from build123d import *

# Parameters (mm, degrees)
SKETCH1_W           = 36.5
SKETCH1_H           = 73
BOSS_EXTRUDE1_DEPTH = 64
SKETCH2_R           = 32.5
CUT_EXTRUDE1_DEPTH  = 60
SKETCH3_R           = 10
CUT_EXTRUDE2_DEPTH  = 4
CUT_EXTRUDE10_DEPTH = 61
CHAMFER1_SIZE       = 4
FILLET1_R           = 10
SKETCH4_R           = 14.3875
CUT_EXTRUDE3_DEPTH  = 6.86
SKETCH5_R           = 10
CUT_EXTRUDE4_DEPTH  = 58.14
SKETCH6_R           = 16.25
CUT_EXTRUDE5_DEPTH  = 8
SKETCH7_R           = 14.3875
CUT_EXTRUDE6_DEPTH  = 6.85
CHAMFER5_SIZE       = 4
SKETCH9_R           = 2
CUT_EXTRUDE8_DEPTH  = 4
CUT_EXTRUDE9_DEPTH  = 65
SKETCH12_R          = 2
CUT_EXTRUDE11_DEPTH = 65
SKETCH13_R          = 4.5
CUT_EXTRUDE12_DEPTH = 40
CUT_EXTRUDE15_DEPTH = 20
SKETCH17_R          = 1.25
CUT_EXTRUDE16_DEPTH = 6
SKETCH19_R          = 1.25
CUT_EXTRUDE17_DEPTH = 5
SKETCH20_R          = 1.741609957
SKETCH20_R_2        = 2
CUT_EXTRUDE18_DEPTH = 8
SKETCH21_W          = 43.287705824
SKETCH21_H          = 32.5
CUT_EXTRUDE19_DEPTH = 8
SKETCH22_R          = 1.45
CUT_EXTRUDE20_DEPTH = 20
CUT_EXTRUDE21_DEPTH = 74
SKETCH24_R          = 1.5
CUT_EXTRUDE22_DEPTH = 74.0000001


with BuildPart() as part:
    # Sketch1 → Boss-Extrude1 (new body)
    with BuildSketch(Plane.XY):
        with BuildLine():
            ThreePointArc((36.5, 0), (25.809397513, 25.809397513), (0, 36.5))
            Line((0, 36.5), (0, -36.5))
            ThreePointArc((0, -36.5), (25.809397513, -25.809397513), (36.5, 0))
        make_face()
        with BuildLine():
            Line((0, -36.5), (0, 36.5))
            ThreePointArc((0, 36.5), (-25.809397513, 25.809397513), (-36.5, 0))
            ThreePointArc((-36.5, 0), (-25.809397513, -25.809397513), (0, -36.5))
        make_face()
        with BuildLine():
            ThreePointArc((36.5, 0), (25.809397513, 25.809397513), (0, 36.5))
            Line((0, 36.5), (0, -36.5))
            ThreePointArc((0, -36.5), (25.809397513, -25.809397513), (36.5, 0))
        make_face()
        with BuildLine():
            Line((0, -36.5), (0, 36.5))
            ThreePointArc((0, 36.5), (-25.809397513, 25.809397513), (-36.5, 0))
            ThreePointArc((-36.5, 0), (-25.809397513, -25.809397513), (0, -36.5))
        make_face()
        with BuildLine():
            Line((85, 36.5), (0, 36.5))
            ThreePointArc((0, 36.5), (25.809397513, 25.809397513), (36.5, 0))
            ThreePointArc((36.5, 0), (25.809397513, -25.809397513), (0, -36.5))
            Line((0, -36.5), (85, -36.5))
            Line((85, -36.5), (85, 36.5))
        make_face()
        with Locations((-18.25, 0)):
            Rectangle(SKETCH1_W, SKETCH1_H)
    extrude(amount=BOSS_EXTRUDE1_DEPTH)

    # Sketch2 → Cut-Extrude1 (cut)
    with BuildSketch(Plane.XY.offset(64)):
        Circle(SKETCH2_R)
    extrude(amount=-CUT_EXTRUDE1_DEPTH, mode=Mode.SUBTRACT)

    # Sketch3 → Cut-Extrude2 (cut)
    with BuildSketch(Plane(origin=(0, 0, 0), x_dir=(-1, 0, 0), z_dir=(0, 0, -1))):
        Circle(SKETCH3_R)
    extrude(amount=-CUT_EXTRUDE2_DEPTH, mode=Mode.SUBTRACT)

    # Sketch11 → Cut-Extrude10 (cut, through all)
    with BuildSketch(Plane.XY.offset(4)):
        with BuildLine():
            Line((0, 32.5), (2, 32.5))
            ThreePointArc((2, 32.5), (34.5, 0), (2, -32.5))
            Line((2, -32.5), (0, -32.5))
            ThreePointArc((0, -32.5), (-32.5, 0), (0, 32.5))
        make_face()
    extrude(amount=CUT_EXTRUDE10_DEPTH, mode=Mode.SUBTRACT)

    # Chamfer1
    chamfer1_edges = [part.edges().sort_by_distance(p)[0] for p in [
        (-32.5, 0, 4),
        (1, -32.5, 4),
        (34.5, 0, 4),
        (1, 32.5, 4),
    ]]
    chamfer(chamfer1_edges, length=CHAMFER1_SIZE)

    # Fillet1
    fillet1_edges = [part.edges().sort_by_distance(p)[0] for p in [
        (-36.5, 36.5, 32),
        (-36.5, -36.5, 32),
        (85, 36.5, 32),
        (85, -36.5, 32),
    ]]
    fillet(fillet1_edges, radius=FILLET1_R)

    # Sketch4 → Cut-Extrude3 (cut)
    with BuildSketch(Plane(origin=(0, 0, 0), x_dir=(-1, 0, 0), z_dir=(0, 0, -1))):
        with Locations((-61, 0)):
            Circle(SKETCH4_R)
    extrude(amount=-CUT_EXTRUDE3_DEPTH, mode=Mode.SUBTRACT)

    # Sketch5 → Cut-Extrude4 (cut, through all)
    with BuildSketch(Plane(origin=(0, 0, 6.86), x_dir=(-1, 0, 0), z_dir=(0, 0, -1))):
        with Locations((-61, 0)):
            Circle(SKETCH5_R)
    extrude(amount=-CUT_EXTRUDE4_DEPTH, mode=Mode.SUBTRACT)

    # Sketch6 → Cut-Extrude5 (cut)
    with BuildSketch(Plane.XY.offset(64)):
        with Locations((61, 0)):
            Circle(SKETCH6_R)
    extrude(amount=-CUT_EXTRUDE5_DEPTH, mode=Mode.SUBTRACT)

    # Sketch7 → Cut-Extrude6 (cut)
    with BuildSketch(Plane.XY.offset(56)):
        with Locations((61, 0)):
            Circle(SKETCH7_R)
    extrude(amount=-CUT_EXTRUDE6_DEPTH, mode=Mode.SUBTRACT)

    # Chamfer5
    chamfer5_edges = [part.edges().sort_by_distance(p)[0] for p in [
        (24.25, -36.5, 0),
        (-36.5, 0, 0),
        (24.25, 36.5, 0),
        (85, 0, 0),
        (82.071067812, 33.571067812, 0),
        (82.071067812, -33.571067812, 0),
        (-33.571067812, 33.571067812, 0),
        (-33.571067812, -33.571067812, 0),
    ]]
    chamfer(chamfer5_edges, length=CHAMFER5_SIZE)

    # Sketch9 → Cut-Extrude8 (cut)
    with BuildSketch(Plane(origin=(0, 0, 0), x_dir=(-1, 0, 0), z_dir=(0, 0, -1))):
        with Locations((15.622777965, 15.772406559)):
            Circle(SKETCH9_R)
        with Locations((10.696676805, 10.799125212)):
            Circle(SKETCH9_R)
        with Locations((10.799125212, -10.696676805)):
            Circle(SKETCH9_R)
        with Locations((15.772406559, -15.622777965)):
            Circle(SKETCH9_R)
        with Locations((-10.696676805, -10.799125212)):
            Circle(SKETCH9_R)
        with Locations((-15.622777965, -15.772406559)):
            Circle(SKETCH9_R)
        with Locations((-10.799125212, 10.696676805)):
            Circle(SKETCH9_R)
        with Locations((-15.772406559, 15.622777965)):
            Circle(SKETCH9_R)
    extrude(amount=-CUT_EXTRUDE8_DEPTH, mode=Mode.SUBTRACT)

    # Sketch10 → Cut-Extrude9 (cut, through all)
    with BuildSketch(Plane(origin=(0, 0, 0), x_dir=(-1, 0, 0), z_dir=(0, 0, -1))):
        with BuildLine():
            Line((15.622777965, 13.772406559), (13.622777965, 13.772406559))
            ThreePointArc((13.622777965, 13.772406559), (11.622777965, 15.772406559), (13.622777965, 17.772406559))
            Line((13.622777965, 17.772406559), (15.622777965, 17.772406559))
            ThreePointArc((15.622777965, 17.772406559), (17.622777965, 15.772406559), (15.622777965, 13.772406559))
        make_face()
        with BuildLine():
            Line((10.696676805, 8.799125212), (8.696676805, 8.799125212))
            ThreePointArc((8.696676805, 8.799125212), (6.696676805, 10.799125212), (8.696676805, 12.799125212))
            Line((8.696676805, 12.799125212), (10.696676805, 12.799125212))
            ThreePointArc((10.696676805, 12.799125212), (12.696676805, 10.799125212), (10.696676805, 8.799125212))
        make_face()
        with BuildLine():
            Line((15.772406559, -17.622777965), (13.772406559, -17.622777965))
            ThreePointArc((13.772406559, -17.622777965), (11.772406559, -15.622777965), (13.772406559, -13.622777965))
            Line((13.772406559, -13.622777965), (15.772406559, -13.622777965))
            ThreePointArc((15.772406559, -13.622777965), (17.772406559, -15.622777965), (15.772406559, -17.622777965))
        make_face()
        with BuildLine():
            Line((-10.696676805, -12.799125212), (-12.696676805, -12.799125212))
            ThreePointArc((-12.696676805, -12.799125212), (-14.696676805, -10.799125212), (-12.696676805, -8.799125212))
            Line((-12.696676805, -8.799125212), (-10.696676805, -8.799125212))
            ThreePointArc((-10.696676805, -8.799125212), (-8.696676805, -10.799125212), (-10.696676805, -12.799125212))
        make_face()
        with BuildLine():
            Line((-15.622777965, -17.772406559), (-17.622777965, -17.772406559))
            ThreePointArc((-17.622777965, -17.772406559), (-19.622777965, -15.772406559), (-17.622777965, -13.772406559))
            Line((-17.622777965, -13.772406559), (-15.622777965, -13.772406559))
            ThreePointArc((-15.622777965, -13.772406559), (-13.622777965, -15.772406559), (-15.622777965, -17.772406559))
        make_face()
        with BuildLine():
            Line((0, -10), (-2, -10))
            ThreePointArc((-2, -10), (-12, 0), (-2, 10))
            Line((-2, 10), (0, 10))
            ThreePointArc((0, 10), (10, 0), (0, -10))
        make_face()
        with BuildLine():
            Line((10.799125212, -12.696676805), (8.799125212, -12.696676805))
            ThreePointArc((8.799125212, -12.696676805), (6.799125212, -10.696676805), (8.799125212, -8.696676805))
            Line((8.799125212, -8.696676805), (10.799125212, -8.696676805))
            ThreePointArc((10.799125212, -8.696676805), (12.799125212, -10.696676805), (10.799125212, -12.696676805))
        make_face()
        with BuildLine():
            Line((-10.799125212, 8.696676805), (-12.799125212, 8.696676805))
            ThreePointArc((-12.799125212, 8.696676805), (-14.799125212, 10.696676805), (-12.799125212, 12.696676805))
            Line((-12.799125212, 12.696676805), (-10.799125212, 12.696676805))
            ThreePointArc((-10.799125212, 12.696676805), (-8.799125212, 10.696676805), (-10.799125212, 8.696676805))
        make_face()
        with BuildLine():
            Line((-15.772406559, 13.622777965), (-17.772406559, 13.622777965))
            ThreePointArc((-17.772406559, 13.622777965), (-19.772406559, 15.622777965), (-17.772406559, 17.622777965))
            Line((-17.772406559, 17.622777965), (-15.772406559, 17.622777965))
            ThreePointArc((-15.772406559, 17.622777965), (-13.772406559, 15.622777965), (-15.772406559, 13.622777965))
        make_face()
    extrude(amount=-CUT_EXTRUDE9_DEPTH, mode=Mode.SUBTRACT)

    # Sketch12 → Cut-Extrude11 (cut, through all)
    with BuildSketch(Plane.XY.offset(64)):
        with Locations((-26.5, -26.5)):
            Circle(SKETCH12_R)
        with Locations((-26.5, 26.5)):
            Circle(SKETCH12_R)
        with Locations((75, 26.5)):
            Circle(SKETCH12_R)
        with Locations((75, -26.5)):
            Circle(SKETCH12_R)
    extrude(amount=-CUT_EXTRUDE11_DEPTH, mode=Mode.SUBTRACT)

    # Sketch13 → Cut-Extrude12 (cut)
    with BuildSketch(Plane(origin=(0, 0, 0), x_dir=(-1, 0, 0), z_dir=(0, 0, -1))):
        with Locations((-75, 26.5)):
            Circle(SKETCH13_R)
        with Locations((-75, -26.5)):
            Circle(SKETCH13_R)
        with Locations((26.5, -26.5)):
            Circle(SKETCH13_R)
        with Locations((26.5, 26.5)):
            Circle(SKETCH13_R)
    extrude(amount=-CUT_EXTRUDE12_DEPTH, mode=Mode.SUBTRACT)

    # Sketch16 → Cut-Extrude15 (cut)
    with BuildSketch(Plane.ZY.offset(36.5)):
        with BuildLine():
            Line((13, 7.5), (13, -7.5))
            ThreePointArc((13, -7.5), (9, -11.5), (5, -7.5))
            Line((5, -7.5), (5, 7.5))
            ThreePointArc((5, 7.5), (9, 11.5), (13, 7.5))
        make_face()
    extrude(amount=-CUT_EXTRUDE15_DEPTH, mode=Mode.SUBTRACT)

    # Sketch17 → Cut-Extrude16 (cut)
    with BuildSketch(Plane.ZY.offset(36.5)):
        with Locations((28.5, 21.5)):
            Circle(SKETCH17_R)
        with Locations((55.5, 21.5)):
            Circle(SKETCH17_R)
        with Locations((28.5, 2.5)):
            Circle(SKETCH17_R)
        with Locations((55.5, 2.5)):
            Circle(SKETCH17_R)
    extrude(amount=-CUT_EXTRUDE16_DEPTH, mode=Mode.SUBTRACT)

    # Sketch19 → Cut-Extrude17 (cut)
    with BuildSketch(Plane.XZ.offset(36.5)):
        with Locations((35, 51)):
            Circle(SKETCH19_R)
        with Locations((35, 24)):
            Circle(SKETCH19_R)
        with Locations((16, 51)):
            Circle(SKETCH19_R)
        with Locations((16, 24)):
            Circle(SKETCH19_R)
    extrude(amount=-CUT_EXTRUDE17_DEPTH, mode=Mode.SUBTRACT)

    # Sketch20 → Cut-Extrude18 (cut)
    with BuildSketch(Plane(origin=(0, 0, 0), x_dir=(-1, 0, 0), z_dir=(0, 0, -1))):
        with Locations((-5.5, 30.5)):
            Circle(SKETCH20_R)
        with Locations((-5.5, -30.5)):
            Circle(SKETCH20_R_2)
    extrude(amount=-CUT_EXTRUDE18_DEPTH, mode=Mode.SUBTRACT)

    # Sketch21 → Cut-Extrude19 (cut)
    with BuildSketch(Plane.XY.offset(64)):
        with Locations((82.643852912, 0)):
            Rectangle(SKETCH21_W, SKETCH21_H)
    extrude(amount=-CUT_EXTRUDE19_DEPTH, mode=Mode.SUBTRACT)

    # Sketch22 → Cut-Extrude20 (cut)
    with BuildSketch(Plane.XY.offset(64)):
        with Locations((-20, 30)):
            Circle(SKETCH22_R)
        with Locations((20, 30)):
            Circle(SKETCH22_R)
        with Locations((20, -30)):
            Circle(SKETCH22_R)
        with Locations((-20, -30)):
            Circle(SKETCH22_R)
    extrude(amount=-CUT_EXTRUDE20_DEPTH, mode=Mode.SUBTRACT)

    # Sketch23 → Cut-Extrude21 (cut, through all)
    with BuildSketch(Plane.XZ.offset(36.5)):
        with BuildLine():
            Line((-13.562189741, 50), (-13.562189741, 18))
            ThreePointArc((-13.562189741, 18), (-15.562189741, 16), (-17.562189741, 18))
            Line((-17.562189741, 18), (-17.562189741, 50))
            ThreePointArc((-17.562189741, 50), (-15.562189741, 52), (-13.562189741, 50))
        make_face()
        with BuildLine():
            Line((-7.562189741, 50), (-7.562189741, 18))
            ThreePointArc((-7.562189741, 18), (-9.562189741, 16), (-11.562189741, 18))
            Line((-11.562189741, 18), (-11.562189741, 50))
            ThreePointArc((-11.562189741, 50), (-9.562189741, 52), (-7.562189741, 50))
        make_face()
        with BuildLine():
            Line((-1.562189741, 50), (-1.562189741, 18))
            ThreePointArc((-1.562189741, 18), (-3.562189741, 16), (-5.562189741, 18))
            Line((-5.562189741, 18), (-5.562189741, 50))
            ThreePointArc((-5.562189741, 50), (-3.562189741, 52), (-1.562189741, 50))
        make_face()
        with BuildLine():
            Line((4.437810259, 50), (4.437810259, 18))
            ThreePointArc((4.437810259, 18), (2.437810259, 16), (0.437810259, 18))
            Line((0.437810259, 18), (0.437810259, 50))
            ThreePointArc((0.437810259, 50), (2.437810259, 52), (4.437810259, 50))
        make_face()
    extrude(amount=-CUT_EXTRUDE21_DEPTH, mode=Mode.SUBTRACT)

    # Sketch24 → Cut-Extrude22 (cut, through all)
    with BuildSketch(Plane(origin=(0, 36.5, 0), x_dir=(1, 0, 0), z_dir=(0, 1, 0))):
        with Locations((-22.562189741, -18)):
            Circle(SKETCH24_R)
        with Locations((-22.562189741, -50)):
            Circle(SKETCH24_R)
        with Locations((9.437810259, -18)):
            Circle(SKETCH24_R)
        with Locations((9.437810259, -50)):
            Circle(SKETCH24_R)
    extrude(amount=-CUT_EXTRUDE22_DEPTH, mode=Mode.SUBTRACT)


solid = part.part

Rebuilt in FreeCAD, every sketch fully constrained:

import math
import FreeCAD as App
import Part
import Sketcher
from FreeCAD import Vector
Q = App.Units.Quantity


def edges_at(feature, points):
    """Names of the edges that pass closest to the given points."""
    edges = feature.Shape.Edges
    near = lambda p: min(range(len(edges)), key=lambda i: edges[i].distToShape(Part.Vertex(*p))[0])
    return sorted({f"Edge{near(p) + 1}" for p in points})

doc = App.newDocument("Part")
body = doc.addObject("PartDesign::Body", "Body")

sketch1 = body.newObject("Sketcher::SketchObject", "Sketch")
sketch1.AttachmentSupport = (doc.getObject("XY_Plane"), [""])
sketch1.MapMode = "FlatFace"
sketch1.addGeometry(Part.LineSegment(Vector(85, 36, 0), Vector(-36, 36, 0)), False)
sketch1.addGeometry(Part.LineSegment(Vector(-36, 36, 0), Vector(-36, -36, 0)), False)
sketch1.addGeometry(Part.LineSegment(Vector(-36, -36, 0), Vector(85, -36, 0)), False)
sketch1.addGeometry(Part.LineSegment(Vector(85, -36, 0), Vector(85, 36, 0)), False)
sketch1.addConstraint(Sketcher.Constraint("Coincident", 0, 2, 1, 1))
sketch1.addConstraint(Sketcher.Constraint("Coincident", 1, 2, 2, 1))
sketch1.addConstraint(Sketcher.Constraint("Coincident", 2, 2, 3, 1))
sketch1.addConstraint(Sketcher.Constraint("Coincident", 3, 2, 0, 1))
sketch1.addConstraint(Sketcher.Constraint("Horizontal", 0))
sketch1.addConstraint(Sketcher.Constraint("Vertical", 1))
sketch1.addConstraint(Sketcher.Constraint("Horizontal", 2))
sketch1.addConstraint(Sketcher.Constraint("Vertical", 3))
sketch1.addConstraint(Sketcher.Constraint("DistanceY", 1, 2, 1, 1, Q("73 mm")))
sketch1.addConstraint(Sketcher.Constraint("DistanceX", 0, 2, 0, 1, Q("121.5 mm")))
sketch1.addConstraint(Sketcher.Constraint("DistanceX", -1, 1, 2, 2, Q("85 mm")))
sketch1.addConstraint(Sketcher.Constraint("DistanceY", -1, 1, 0, 2, Q("36.5 mm")))
pad1 = body.newObject("PartDesign::Pad", "Pad")
pad1.Profile = sketch1
pad1.Length = 64

sketch2 = body.newObject("Sketcher::SketchObject", "Sketch001")
sketch2.AttachmentSupport = (doc.getObject("XY_Plane"), [""])
sketch2.MapMode = "FlatFace"
sketch2.AttachmentOffset = App.Placement(Vector(0, 0, 64), App.Rotation())
sketch2.addGeometry(Part.Circle(Vector(0, 0, 0), Vector(0, 0, 1), 32), False)
sketch2.addConstraint(Sketcher.Constraint("Coincident", 0, 3, -1, 1))
sketch2.addConstraint(Sketcher.Constraint("Diameter", 0, Q("65 mm")))
pocket1 = body.newObject("PartDesign::Pocket", "Pocket")
pocket1.Profile = sketch2
pocket1.Length = 60

sketch3 = body.newObject("Sketcher::SketchObject", "Sketch002")
sketch3.AttachmentSupport = (doc.getObject("XY_Plane"), [""])
sketch3.MapMode = "FlatFace"
sketch3.addGeometry(Part.Circle(Vector(0, 0, 0), Vector(0, 0, 1), 10), False)
sketch3.addConstraint(Sketcher.Constraint("Coincident", 0, 3, -1, 1))
sketch3.addConstraint(Sketcher.Constraint("Diameter", 0, Q("20 mm")))
pocket2 = body.newObject("PartDesign::Pocket", "Pocket001")
pocket2.Profile = sketch3
pocket2.Length = 4
pocket2.Reversed = True

sketch4 = body.newObject("Sketcher::SketchObject", "Sketch003")
sketch4.AttachmentSupport = (doc.getObject("XY_Plane"), [""])
sketch4.MapMode = "FlatFace"
sketch4.AttachmentOffset = App.Placement(Vector(0, 0, 4), App.Rotation())
sketch4.addGeometry(Part.LineSegment(Vector(2, 32.5, 0), Vector(0, 32.5, 0)), False)
sketch4.addGeometry(Part.ArcOfCircle(Part.Circle(Vector(0, 0, 0), Vector(0, 0, 1), 32.5), math.radians(90), math.radians(270)), False)
sketch4.addGeometry(Part.LineSegment(Vector(0, -32.5, 0), Vector(2, -32.5, 0)), False)
sketch4.addGeometry(Part.ArcOfCircle(Part.Circle(Vector(2, 0, 0), Vector(0, 0, 1), 32.5), math.radians(-90), math.radians(90)), False)
sketch4.addConstraint(Sketcher.Constraint("Tangent", 0, 2, 1, 1))
sketch4.addConstraint(Sketcher.Constraint("Tangent", 1, 2, 2, 1))
sketch4.addConstraint(Sketcher.Constraint("Tangent", 2, 2, 3, 1))
sketch4.addConstraint(Sketcher.Constraint("Tangent", 3, 2, 0, 1))
sketch4.addConstraint(Sketcher.Constraint("Horizontal", 0))
sketch4.addConstraint(Sketcher.Constraint("Horizontal", 2))
sketch4.addConstraint(Sketcher.Constraint("Coincident", 1, 3, -1, 1))
sketch4.addConstraint(Sketcher.Constraint("Radius", 1, Q("32.5 mm")))
sketch4.addConstraint(Sketcher.Constraint("DistanceX", 0, 2, 0, 1, Q("2 mm")))
pocket3 = body.newObject("PartDesign::Pocket", "Pocket002")
pocket3.Profile = sketch4
pocket3.Type = "ThroughAll"
pocket3.Reversed = True
doc.recompute()

chamfer = body.newObject("PartDesign::Chamfer", "Chamfer")
chamfer.Base = (pocket3, edges_at(pocket3, [
    (-32.5, 0, 4),
    (1, -32.5, 4),
    (34.5, 0, 4),
    (1, 32.5, 4),
]))
chamfer.Size = 4
doc.recompute()

fillet = body.newObject("PartDesign::Fillet", "Fillet")
fillet.Base = (chamfer, edges_at(chamfer, [
    (-36.5, 36.5, 32),
    (-36.5, -36.5, 32),
    (85, 36.5, 32),
    (85, -36.5, 32),
]))
fillet.Radius = 10

sketch5 = body.newObject("Sketcher::SketchObject", "Sketch004")
sketch5.AttachmentSupport = (doc.getObject("XY_Plane"), [""])
sketch5.MapMode = "FlatFace"
sketch5.addGeometry(Part.Circle(Vector(61, 0, 0), Vector(0, 0, 1), 14), False)
sketch5.addConstraint(Sketcher.Constraint("PointOnObject", 0, 3, -1))
sketch5.addConstraint(Sketcher.Constraint("Diameter", 0, Q("28.775 mm")))
sketch5.addConstraint(Sketcher.Constraint("DistanceX", -1, 1, 0, 3, Q("61 mm")))
pocket4 = body.newObject("PartDesign::Pocket", "Pocket003")
pocket4.Profile = sketch5
pocket4.Length = 6.86
pocket4.Reversed = True

sketch6 = body.newObject("Sketcher::SketchObject", "Sketch005")
sketch6.AttachmentSupport = (doc.getObject("XY_Plane"), [""])
sketch6.MapMode = "FlatFace"
sketch6.AttachmentOffset = App.Placement(Vector(0, 0, 6.86), App.Rotation())
sketch6.addGeometry(Part.Circle(Vector(61, 0, 0), Vector(0, 0, 1), 10), False)
sketch6.addConstraint(Sketcher.Constraint("PointOnObject", 0, 3, -1))
sketch6.addConstraint(Sketcher.Constraint("Diameter", 0, Q("20 mm")))
sketch6.addConstraint(Sketcher.Constraint("DistanceX", -1, 1, 0, 3, Q("61 mm")))
pocket5 = body.newObject("PartDesign::Pocket", "Pocket004")
pocket5.Profile = sketch6
pocket5.Type = "ThroughAll"
pocket5.Reversed = True

sketch7 = body.newObject("Sketcher::SketchObject", "Sketch006")
sketch7.AttachmentSupport = (doc.getObject("XY_Plane"), [""])
sketch7.MapMode = "FlatFace"
sketch7.AttachmentOffset = App.Placement(Vector(0, 0, 64), App.Rotation())
sketch7.addGeometry(Part.Circle(Vector(61, 0, 0), Vector(0, 0, 1), 16), False)
sketch7.addConstraint(Sketcher.Constraint("PointOnObject", 0, 3, -1))
sketch7.addConstraint(Sketcher.Constraint("Diameter", 0, Q("32.5 mm")))
sketch7.addConstraint(Sketcher.Constraint("DistanceX", -1, 1, 0, 3, Q("61 mm")))
pocket6 = body.newObject("PartDesign::Pocket", "Pocket005")
pocket6.Profile = sketch7
pocket6.Length = 8

sketch8 = body.newObject("Sketcher::SketchObject", "Sketch007")
sketch8.AttachmentSupport = (doc.getObject("XY_Plane"), [""])
sketch8.MapMode = "FlatFace"
sketch8.AttachmentOffset = App.Placement(Vector(0, 0, 56), App.Rotation())
sketch8.addGeometry(Part.Circle(Vector(61, 0, 0), Vector(0, 0, 1), 14), False)
sketch8.addConstraint(Sketcher.Constraint("PointOnObject", 0, 3, -1))
sketch8.addConstraint(Sketcher.Constraint("Diameter", 0, Q("28.775 mm")))
sketch8.addConstraint(Sketcher.Constraint("DistanceX", -1, 1, 0, 3, Q("61 mm")))
pocket7 = body.newObject("PartDesign::Pocket", "Pocket006")
pocket7.Profile = sketch8
pocket7.Length = 6.85
doc.recompute()

chamfer2 = body.newObject("PartDesign::Chamfer", "Chamfer001")
chamfer2.Base = (pocket7, edges_at(pocket7, [
    (24.25, -36.5, 0),
    (-36.5, 0, 0),
    (24.25, 36.5, 0),
    (85, 0, 0),
    (82.071, 33.571, 0),
    (82.071, -33.571, 0),
    (-33.571, 33.571, 0),
    (-33.571, -33.571, 0),
]))
chamfer2.Size = 4

sketch9 = body.newObject("Sketcher::SketchObject", "Sketch008")
sketch9.AttachmentSupport = (doc.getObject("XY_Plane"), [""])
sketch9.MapMode = "FlatFace"
sketch9.addGeometry(Part.Circle(Vector(-15.6, 15.8, 0), Vector(0, 0, 1), 2), False)
sketch9.addGeometry(Part.Circle(Vector(-10.7, 10.8, 0), Vector(0, 0, 1), 2), False)
sketch9.addGeometry(Part.Circle(Vector(-10.8, -10.7, 0), Vector(0, 0, 1), 2), False)
sketch9.addGeometry(Part.Circle(Vector(-15.8, -15.6, 0), Vector(0, 0, 1), 2), False)
sketch9.addGeometry(Part.Circle(Vector(10.7, -10.8, 0), Vector(0, 0, 1), 2), False)
sketch9.addGeometry(Part.Circle(Vector(15.6, -15.8, 0), Vector(0, 0, 1), 2), False)
sketch9.addGeometry(Part.Circle(Vector(10.8, 10.7, 0), Vector(0, 0, 1), 2), False)
sketch9.addGeometry(Part.Circle(Vector(15.8, 15.6, 0), Vector(0, 0, 1), 2), False)
sketch9.addConstraint(Sketcher.Constraint("Equal", 0, 1))
sketch9.addConstraint(Sketcher.Constraint("Equal", 1, 2))
sketch9.addConstraint(Sketcher.Constraint("Equal", 2, 3))
sketch9.addConstraint(Sketcher.Constraint("Equal", 3, 4))
sketch9.addConstraint(Sketcher.Constraint("Equal", 4, 5))
sketch9.addConstraint(Sketcher.Constraint("Equal", 5, 6))
sketch9.addConstraint(Sketcher.Constraint("Equal", 6, 7))
sketch9.addConstraint(Sketcher.Constraint("Symmetric", 1, 3, 4, 3, -1, 1))
sketch9.addConstraint(Sketcher.Constraint("Symmetric", 0, 3, 5, 3, -1, 1))
sketch9.addConstraint(Sketcher.Constraint("Symmetric", 2, 3, 6, 3, -1, 1))
sketch9.addConstraint(Sketcher.Constraint("Symmetric", 3, 3, 7, 3, -1, 1))
sketch9.addConstraint(Sketcher.Constraint("Diameter", 0, Q("4 mm")))
sketch9.addConstraint(Sketcher.Constraint("DistanceX", 0, 3, 1, 3, Q("4.926101 mm")))
sketch9.addConstraint(Sketcher.Constraint("DistanceY", 3, 3, 2, 3, Q("4.926101 mm")))
sketch9.addConstraint(Sketcher.Constraint("DistanceY", 1, 3, 0, 3, Q("4.973281 mm")))
sketch9.addConstraint(Sketcher.Constraint("DistanceX", 2, 3, 1, 3, Q("0.102448 mm")))
sketch9.addConstraint(Sketcher.Constraint("DistanceX", 3, 3, 2, 3, Q("4.973281 mm")))
sketch9.addConstraint(Sketcher.Constraint("DistanceY", 4, 3, 2, 3, Q("0.102448 mm")))
sketch9.addConstraint(Sketcher.Constraint("DistanceY", 4, 3, 1, 3, Q("21.59825 mm")))
sketch9.addConstraint(Sketcher.Constraint("DistanceX", 2, 3, 6, 3, Q("21.59825 mm")))
pocket8 = body.newObject("PartDesign::Pocket", "Pocket007")
pocket8.Profile = sketch9
pocket8.Length = 4
pocket8.Reversed = True

sketch10 = body.newObject("Sketcher::SketchObject", "Sketch009")
sketch10.AttachmentSupport = (doc.getObject("XY_Plane"), [""])
sketch10.MapMode = "FlatFace"
sketch10.addGeometry(Part.LineSegment(Vector(-13.6, 13.8, 0), Vector(-15.6, 13.8, 0)), False)
sketch10.addGeometry(Part.ArcOfCircle(Part.Circle(Vector(-15.6, 15.8, 0), Vector(0, 0, 1), 2), math.radians(90), math.radians(270)), False)
sketch10.addGeometry(Part.LineSegment(Vector(-15.6, 17.8, 0), Vector(-13.6, 17.8, 0)), False)
sketch10.addGeometry(Part.ArcOfCircle(Part.Circle(Vector(-13.6, 15.8, 0), Vector(0, 0, 1), 2), math.radians(-90), math.radians(90)), False)
sketch10.addGeometry(Part.LineSegment(Vector(-8.7, 8.8, 0), Vector(-10.7, 8.8, 0)), False)
sketch10.addGeometry(Part.ArcOfCircle(Part.Circle(Vector(-10.7, 10.8, 0), Vector(0, 0, 1), 2), math.radians(90), math.radians(270)), False)
sketch10.addGeometry(Part.LineSegment(Vector(-10.7, 12.8, 0), Vector(-8.7, 12.8, 0)), False)
sketch10.addGeometry(Part.ArcOfCircle(Part.Circle(Vector(-8.7, 10.8, 0), Vector(0, 0, 1), 2), math.radians(-90), math.radians(90)), False)
sketch10.addGeometry(Part.LineSegment(Vector(-13.8, -17.6, 0), Vector(-15.8, -17.6, 0)), False)
sketch10.addGeometry(Part.ArcOfCircle(Part.Circle(Vector(-15.8, -15.6, 0), Vector(0, 0, 1), 2), math.radians(90), math.radians(270)), False)
sketch10.addGeometry(Part.LineSegment(Vector(-15.8, -13.6, 0), Vector(-13.8, -13.6, 0)), False)
sketch10.addGeometry(Part.ArcOfCircle(Part.Circle(Vector(-13.8, -15.6, 0), Vector(0, 0, 1), 2), math.radians(-90), math.radians(90)), False)
sketch10.addGeometry(Part.LineSegment(Vector(12.7, -12.8, 0), Vector(10.7, -12.8, 0)), False)
sketch10.addGeometry(Part.ArcOfCircle(Part.Circle(Vector(10.7, -10.8, 0), Vector(0, 0, 1), 2), math.radians(90), math.radians(270)), False)
sketch10.addGeometry(Part.LineSegment(Vector(10.7, -8.8, 0), Vector(12.7, -8.8, 0)), False)
sketch10.addGeometry(Part.ArcOfCircle(Part.Circle(Vector(12.7, -10.8, 0), Vector(0, 0, 1), 2), math.radians(-90), math.radians(90)), False)
sketch10.addGeometry(Part.LineSegment(Vector(17.6, -17.8, 0), Vector(15.6, -17.8, 0)), False)
sketch10.addGeometry(Part.ArcOfCircle(Part.Circle(Vector(15.6, -15.8, 0), Vector(0, 0, 1), 2), math.radians(90), math.radians(270)), False)
sketch10.addGeometry(Part.LineSegment(Vector(15.6, -13.8, 0), Vector(17.6, -13.8, 0)), False)
sketch10.addGeometry(Part.ArcOfCircle(Part.Circle(Vector(17.6, -15.8, 0), Vector(0, 0, 1), 2), math.radians(-90), math.radians(90)), False)
sketch10.addGeometry(Part.LineSegment(Vector(2, -10, 0), Vector(0, -10, 0)), False)
sketch10.addGeometry(Part.ArcOfCircle(Part.Circle(Vector(0, 0, 0), Vector(0, 0, 1), 10), math.radians(90), math.radians(270)), False)
sketch10.addGeometry(Part.LineSegment(Vector(0, 10, 0), Vector(2, 10, 0)), False)
sketch10.addGeometry(Part.ArcOfCircle(Part.Circle(Vector(2, 0, 0), Vector(0, 0, 1), 10), math.radians(-90), math.radians(90)), False)
sketch10.addGeometry(Part.LineSegment(Vector(-8.8, -12.7, 0), Vector(-10.8, -12.7, 0)), False)
sketch10.addGeometry(Part.ArcOfCircle(Part.Circle(Vector(-10.8, -10.7, 0), Vector(0, 0, 1), 2), math.radians(90), math.radians(270)), False)
sketch10.addGeometry(Part.LineSegment(Vector(-10.8, -8.7, 0), Vector(-8.8, -8.7, 0)), False)
sketch10.addGeometry(Part.ArcOfCircle(Part.Circle(Vector(-8.8, -10.7, 0), Vector(0, 0, 1), 2), math.radians(-90), math.radians(90)), False)
sketch10.addGeometry(Part.LineSegment(Vector(12.8, 8.7, 0), Vector(10.8, 8.7, 0)), False)
sketch10.addGeometry(Part.ArcOfCircle(Part.Circle(Vector(10.8, 10.7, 0), Vector(0, 0, 1), 2), math.radians(90), math.radians(270)), False)
sketch10.addGeometry(Part.LineSegment(Vector(10.8, 12.7, 0), Vector(12.8, 12.7, 0)), False)
sketch10.addGeometry(Part.ArcOfCircle(Part.Circle(Vector(12.8, 10.7, 0), Vector(0, 0, 1), 2), math.radians(-90), math.radians(90)), False)
sketch10.addGeometry(Part.LineSegment(Vector(17.8, 13.6, 0), Vector(15.8, 13.6, 0)), False)
sketch10.addGeometry(Part.ArcOfCircle(Part.Circle(Vector(15.8, 15.6, 0), Vector(0, 0, 1), 2), math.radians(90), math.radians(270)), False)
sketch10.addGeometry(Part.LineSegment(Vector(15.8, 17.6, 0), Vector(17.8, 17.6, 0)), False)
sketch10.addGeometry(Part.ArcOfCircle(Part.Circle(Vector(17.8, 15.6, 0), Vector(0, 0, 1), 2), math.radians(-90), math.radians(90)), False)
sketch10.addConstraint(Sketcher.Constraint("Tangent", 0, 2, 1, 2))
sketch10.addConstraint(Sketcher.Constraint("Tangent", 1, 1, 2, 1))
sketch10.addConstraint(Sketcher.Constraint("Tangent", 2, 2, 3, 2))
sketch10.addConstraint(Sketcher.Constraint("Tangent", 3, 1, 0, 1))
sketch10.addConstraint(Sketcher.Constraint("Tangent", 4, 2, 5, 2))
sketch10.addConstraint(Sketcher.Constraint("Tangent", 5, 1, 6, 1))
sketch10.addConstraint(Sketcher.Constraint("Tangent", 6, 2, 7, 2))
sketch10.addConstraint(Sketcher.Constraint("Tangent", 7, 1, 4, 1))
sketch10.addConstraint(Sketcher.Constraint("Tangent", 8, 2, 9, 2))
sketch10.addConstraint(Sketcher.Constraint("Tangent", 9, 1, 10, 1))
sketch10.addConstraint(Sketcher.Constraint("Tangent", 10, 2, 11, 2))
sketch10.addConstraint(Sketcher.Constraint("Tangent", 11, 1, 8, 1))
sketch10.addConstraint(Sketcher.Constraint("Tangent", 12, 2, 13, 2))
sketch10.addConstraint(Sketcher.Constraint("Tangent", 13, 1, 14, 1))
sketch10.addConstraint(Sketcher.Constraint("Tangent", 14, 2, 15, 2))
sketch10.addConstraint(Sketcher.Constraint("Tangent", 15, 1, 12, 1))
sketch10.addConstraint(Sketcher.Constraint("Tangent", 16, 2, 17, 2))
sketch10.addConstraint(Sketcher.Constraint("Tangent", 17, 1, 18, 1))
sketch10.addConstraint(Sketcher.Constraint("Tangent", 18, 2, 19, 2))
sketch10.addConstraint(Sketcher.Constraint("Tangent", 19, 1, 16, 1))
sketch10.addConstraint(Sketcher.Constraint("Tangent", 20, 2, 21, 2))
sketch10.addConstraint(Sketcher.Constraint("Tangent", 21, 1, 22, 1))
sketch10.addConstraint(Sketcher.Constraint("Tangent", 22, 2, 23, 2))
sketch10.addConstraint(Sketcher.Constraint("Tangent", 23, 1, 20, 1))
sketch10.addConstraint(Sketcher.Constraint("Tangent", 24, 2, 25, 2))
sketch10.addConstraint(Sketcher.Constraint("Tangent", 25, 1, 26, 1))
sketch10.addConstraint(Sketcher.Constraint("Tangent", 26, 2, 27, 2))
sketch10.addConstraint(Sketcher.Constraint("Tangent", 27, 1, 24, 1))
sketch10.addConstraint(Sketcher.Constraint("Tangent", 28, 2, 29, 2))
sketch10.addConstraint(Sketcher.Constraint("Tangent", 29, 1, 30, 1))
sketch10.addConstraint(Sketcher.Constraint("Tangent", 30, 2, 31, 2))
sketch10.addConstraint(Sketcher.Constraint("Tangent", 31, 1, 28, 1))
sketch10.addConstraint(Sketcher.Constraint("Tangent", 32, 2, 33, 2))
sketch10.addConstraint(Sketcher.Constraint("Tangent", 33, 1, 34, 1))
sketch10.addConstraint(Sketcher.Constraint("Tangent", 34, 2, 35, 2))
sketch10.addConstraint(Sketcher.Constraint("Tangent", 35, 1, 32, 1))
sketch10.addConstraint(Sketcher.Constraint("Horizontal", 0))
sketch10.addConstraint(Sketcher.Constraint("Horizontal", 2))
sketch10.addConstraint(Sketcher.Constraint("Horizontal", 4))
sketch10.addConstraint(Sketcher.Constraint("Horizontal", 6))
sketch10.addConstraint(Sketcher.Constraint("Horizontal", 8))
sketch10.addConstraint(Sketcher.Constraint("Horizontal", 10))
sketch10.addConstraint(Sketcher.Constraint("Horizontal", 12))
sketch10.addConstraint(Sketcher.Constraint("Horizontal", 14))
sketch10.addConstraint(Sketcher.Constraint("Horizontal", 16))
sketch10.addConstraint(Sketcher.Constraint("Horizontal", 18))
sketch10.addConstraint(Sketcher.Constraint("Horizontal", 20))
sketch10.addConstraint(Sketcher.Constraint("Horizontal", 22))
sketch10.addConstraint(Sketcher.Constraint("Horizontal", 24))
sketch10.addConstraint(Sketcher.Constraint("Horizontal", 26))
sketch10.addConstraint(Sketcher.Constraint("Horizontal", 28))
sketch10.addConstraint(Sketcher.Constraint("Horizontal", 30))
sketch10.addConstraint(Sketcher.Constraint("Horizontal", 32))
sketch10.addConstraint(Sketcher.Constraint("Horizontal", 34))
sketch10.addConstraint(Sketcher.Constraint("Coincident", 21, 3, -1, 1))
sketch10.addConstraint(Sketcher.Constraint("Equal", 3, 5))
sketch10.addConstraint(Sketcher.Constraint("Equal", 7, 9))
sketch10.addConstraint(Sketcher.Constraint("Equal", 11, 13))
sketch10.addConstraint(Sketcher.Constraint("Equal", 15, 17))
sketch10.addConstraint(Sketcher.Constraint("Equal", 19, 25))
sketch10.addConstraint(Sketcher.Constraint("Equal", 27, 29))
sketch10.addConstraint(Sketcher.Constraint("Equal", 31, 33))
sketch10.addConstraint(Sketcher.Constraint("Symmetric", 5, 3, 13, 3, -1, 1))
sketch10.addConstraint(Sketcher.Constraint("Symmetric", 1, 3, 17, 3, -1, 1))
sketch10.addConstraint(Sketcher.Constraint("Symmetric", 25, 3, 29, 3, -1, 1))
sketch10.addConstraint(Sketcher.Constraint("Symmetric", 9, 3, 33, 3, -1, 1))
sketch10.addConstraint(Sketcher.Constraint("Equal", 2, 4))
sketch10.addConstraint(Sketcher.Constraint("Equal", 6, 8))
sketch10.addConstraint(Sketcher.Constraint("Equal", 10, 12))
sketch10.addConstraint(Sketcher.Constraint("Equal", 14, 16))
sketch10.addConstraint(Sketcher.Constraint("Equal", 18, 20))
sketch10.addConstraint(Sketcher.Constraint("Equal", 22, 24))
sketch10.addConstraint(Sketcher.Constraint("Equal", 26, 28))
sketch10.addConstraint(Sketcher.Constraint("Equal", 30, 32))
sketch10.addConstraint(Sketcher.Constraint("Radius", 1, Q("2 mm")))
sketch10.addConstraint(Sketcher.Constraint("Radius", 21, Q("10 mm")))
sketch10.addConstraint(Sketcher.Constraint("DistanceX", 0, 2, 0, 1, Q("2 mm")))
sketch10.addConstraint(Sketcher.Constraint("DistanceX", 3, 3, 5, 3, Q("2.926101 mm")))
sketch10.addConstraint(Sketcher.Constraint("DistanceY", 11, 3, 25, 3, Q("4.926101 mm")))
sketch10.addConstraint(Sketcher.Constraint("DistanceY", 5, 3, 3, 3, Q("4.973281 mm")))
sketch10.addConstraint(Sketcher.Constraint("DistanceX", 9, 3, 5, 3, Q("5.07573 mm")))
sketch10.addConstraint(Sketcher.Constraint("DistanceY", 13, 3, 7, 3, Q("21.59825 mm")))
sketch10.addConstraint(Sketcher.Constraint("DistanceY", 17, 3, 11, 3, Q("0.149629 mm")))
sketch10.addConstraint(Sketcher.Constraint("DistanceX", 11, 3, 25, 3, Q("2.973281 mm")))
sketch10.addConstraint(Sketcher.Constraint("DistanceX", 1, 3, -1, 1, Q("15.622778 mm")))
pocket9 = body.newObject("PartDesign::Pocket", "Pocket008")
pocket9.Profile = sketch10
pocket9.Type = "ThroughAll"
pocket9.Reversed = True

sketch11 = body.newObject("Sketcher::SketchObject", "Sketch010")
sketch11.AttachmentSupport = (doc.getObject("XY_Plane"), [""])
sketch11.MapMode = "FlatFace"
sketch11.AttachmentOffset = App.Placement(Vector(0, 0, 64), App.Rotation())
sketch11.addGeometry(Part.Circle(Vector(-26.5, -26.5, 0), Vector(0, 0, 1), 2), False)
sketch11.addGeometry(Part.Circle(Vector(-26.5, 26.5, 0), Vector(0, 0, 1), 2), False)
sketch11.addGeometry(Part.Circle(Vector(75, 26.5, 0), Vector(0, 0, 1), 2), False)
sketch11.addGeometry(Part.Circle(Vector(75, -26.5, 0), Vector(0, 0, 1), 2), False)
sketch11.addConstraint(Sketcher.Constraint("Equal", 0, 1))
sketch11.addConstraint(Sketcher.Constraint("Equal", 1, 2))
sketch11.addConstraint(Sketcher.Constraint("Equal", 2, 3))
sketch11.addConstraint(Sketcher.Constraint("Symmetric", 0, 3, 1, 3, -1))
sketch11.addConstraint(Sketcher.Constraint("Symmetric", 2, 3, 3, 3, -1))
sketch11.addConstraint(Sketcher.Constraint("Horizontal", 1, 3, 2, 3))
sketch11.addConstraint(Sketcher.Constraint("Diameter", 0, Q("4 mm")))
sketch11.addConstraint(Sketcher.Constraint("DistanceX", -1, 1, 2, 3, Q("75 mm")))
sketch11.addConstraint(Sketcher.Constraint("DistanceY", 0, 3, 1, 3, Q("53 mm")))
sketch11.addConstraint(Sketcher.Constraint("DistanceX", 0, 3, -1, 1, Q("26.5 mm")))
pocket10 = body.newObject("PartDesign::Pocket", "Pocket009")
pocket10.Profile = sketch11
pocket10.Type = "ThroughAll"

sketch12 = body.newObject("Sketcher::SketchObject", "Sketch011")
sketch12.AttachmentSupport = (doc.getObject("XY_Plane"), [""])
sketch12.MapMode = "FlatFace"
sketch12.addGeometry(Part.Circle(Vector(75, 26.5, 0), Vector(0, 0, 1), 4.5), False)
sketch12.addGeometry(Part.Circle(Vector(75, -26.5, 0), Vector(0, 0, 1), 4.5), False)
sketch12.addGeometry(Part.Circle(Vector(-26.5, -26.5, 0), Vector(0, 0, 1), 4.5), False)
sketch12.addGeometry(Part.Circle(Vector(-26.5, 26.5, 0), Vector(0, 0, 1), 4.5), False)
sketch12.addConstraint(Sketcher.Constraint("Equal", 0, 1))
sketch12.addConstraint(Sketcher.Constraint("Equal", 1, 2))
sketch12.addConstraint(Sketcher.Constraint("Equal", 2, 3))
sketch12.addConstraint(Sketcher.Constraint("Symmetric", 0, 3, 1, 3, -1))
sketch12.addConstraint(Sketcher.Constraint("Symmetric", 2, 3, 3, 3, -1))
sketch12.addConstraint(Sketcher.Constraint("Horizontal", 1, 3, 2, 3))
sketch12.addConstraint(Sketcher.Constraint("Diameter", 0, Q("9 mm")))
sketch12.addConstraint(Sketcher.Constraint("DistanceX", -1, 1, 0, 3, Q("75 mm")))
sketch12.addConstraint(Sketcher.Constraint("DistanceY", 1, 3, 0, 3, Q("53 mm")))
sketch12.addConstraint(Sketcher.Constraint("DistanceX", 2, 3, -1, 1, Q("26.5 mm")))
pocket11 = body.newObject("PartDesign::Pocket", "Pocket010")
pocket11.Profile = sketch12
pocket11.Length = 40
pocket11.Reversed = True

sketch13 = body.newObject("Sketcher::SketchObject", "Sketch012")
sketch13.AttachmentSupport = (doc.getObject("YZ_Plane"), [""])
sketch13.MapMode = "FlatFace"
sketch13.AttachmentOffset = App.Placement(Vector(0, 0, -36.5), App.Rotation())
sketch13.addGeometry(Part.LineSegment(Vector(-7.5, 13, 0), Vector(7.5, 13, 0)), False)
sketch13.addGeometry(Part.ArcOfCircle(Part.Circle(Vector(7.5, 9, 0), Vector(0, 0, 1), 4), math.radians(-90), math.radians(90)), False)
sketch13.addGeometry(Part.LineSegment(Vector(7.5, 5, 0), Vector(-7.5, 5, 0)), False)
sketch13.addGeometry(Part.ArcOfCircle(Part.Circle(Vector(-7.5, 9, 0), Vector(0, 0, 1), 4), math.radians(90), math.radians(270)), False)
sketch13.addConstraint(Sketcher.Constraint("Tangent", 0, 2, 1, 2))
sketch13.addConstraint(Sketcher.Constraint("Tangent", 1, 1, 2, 1))
sketch13.addConstraint(Sketcher.Constraint("Tangent", 2, 2, 3, 2))
sketch13.addConstraint(Sketcher.Constraint("Tangent", 3, 1, 0, 1))
sketch13.addConstraint(Sketcher.Constraint("Horizontal", 0))
sketch13.addConstraint(Sketcher.Constraint("Horizontal", 2))
sketch13.addConstraint(Sketcher.Constraint("Radius", 1, Q("4 mm")))
sketch13.addConstraint(Sketcher.Constraint("DistanceX", 0, 1, 0, 2, Q("15 mm")))
sketch13.addConstraint(Sketcher.Constraint("DistanceY", -1, 1, 1, 3, Q("9 mm")))
sketch13.addConstraint(Sketcher.Constraint("DistanceX", -1, 1, 1, 3, Q("7.5 mm")))
pocket12 = body.newObject("PartDesign::Pocket", "Pocket011")
pocket12.Profile = sketch13
pocket12.Length = 20
pocket12.Reversed = True

sketch14 = body.newObject("Sketcher::SketchObject", "Sketch013")
sketch14.AttachmentSupport = (doc.getObject("YZ_Plane"), [""])
sketch14.MapMode = "FlatFace"
sketch14.AttachmentOffset = App.Placement(Vector(0, 0, -36.5), App.Rotation())
sketch14.addGeometry(Part.Circle(Vector(21.5, 28.5, 0), Vector(0, 0, 1), 1.2), False)
sketch14.addGeometry(Part.Circle(Vector(21.5, 55.5, 0), Vector(0, 0, 1), 1.2), False)
sketch14.addGeometry(Part.Circle(Vector(2.5, 28.5, 0), Vector(0, 0, 1), 1.2), False)
sketch14.addGeometry(Part.Circle(Vector(2.5, 55.5, 0), Vector(0, 0, 1), 1.2), False)
sketch14.addConstraint(Sketcher.Constraint("Equal", 0, 1))
sketch14.addConstraint(Sketcher.Constraint("Equal", 1, 2))
sketch14.addConstraint(Sketcher.Constraint("Equal", 2, 3))
sketch14.addConstraint(Sketcher.Constraint("Horizontal", 0, 3, 2, 3))
sketch14.addConstraint(Sketcher.Constraint("Horizontal", 1, 3, 3, 3))
sketch14.addConstraint(Sketcher.Constraint("Vertical", 0, 3, 1, 3))
sketch14.addConstraint(Sketcher.Constraint("Vertical", 2, 3, 3, 3))
sketch14.addConstraint(Sketcher.Constraint("Diameter", 0, Q("2.5 mm")))
sketch14.addConstraint(Sketcher.Constraint("DistanceY", 0, 3, 1, 3, Q("27 mm")))
sketch14.addConstraint(Sketcher.Constraint("DistanceX", 2, 3, 0, 3, Q("19 mm")))
sketch14.addConstraint(Sketcher.Constraint("DistanceX", -1, 1, 0, 3, Q("21.5 mm")))
sketch14.addConstraint(Sketcher.Constraint("DistanceY", -1, 1, 0, 3, Q("28.5 mm")))
pocket13 = body.newObject("PartDesign::Pocket", "Pocket012")
pocket13.Profile = sketch14
pocket13.Length = 6
pocket13.Reversed = True

sketch15 = body.newObject("Sketcher::SketchObject", "Sketch014")
sketch15.AttachmentSupport = (doc.getObject("XZ_Plane"), [""])
sketch15.MapMode = "FlatFace"
sketch15.AttachmentOffset = App.Placement(Vector(0, 0, 36.5), App.Rotation())
sketch15.addGeometry(Part.Circle(Vector(35, 51, 0), Vector(0, 0, 1), 1.2), False)
sketch15.addGeometry(Part.Circle(Vector(35, 24, 0), Vector(0, 0, 1), 1.2), False)
sketch15.addGeometry(Part.Circle(Vector(16, 51, 0), Vector(0, 0, 1), 1.2), False)
sketch15.addGeometry(Part.Circle(Vector(16, 24, 0), Vector(0, 0, 1), 1.2), False)
sketch15.addConstraint(Sketcher.Constraint("Equal", 0, 1))
sketch15.addConstraint(Sketcher.Constraint("Equal", 1, 2))
sketch15.addConstraint(Sketcher.Constraint("Equal", 2, 3))
sketch15.addConstraint(Sketcher.Constraint("Horizontal", 0, 3, 2, 3))
sketch15.addConstraint(Sketcher.Constraint("Horizontal", 1, 3, 3, 3))
sketch15.addConstraint(Sketcher.Constraint("Vertical", 0, 3, 1, 3))
sketch15.addConstraint(Sketcher.Constraint("Vertical", 2, 3, 3, 3))
sketch15.addConstraint(Sketcher.Constraint("Diameter", 0, Q("2.5 mm")))
sketch15.addConstraint(Sketcher.Constraint("DistanceX", -1, 1, 0, 3, Q("35 mm")))
sketch15.addConstraint(Sketcher.Constraint("DistanceY", -1, 1, 0, 3, Q("51 mm")))
sketch15.addConstraint(Sketcher.Constraint("DistanceY", -1, 1, 1, 3, Q("24 mm")))
sketch15.addConstraint(Sketcher.Constraint("DistanceX", -1, 1, 2, 3, Q("16 mm")))
pocket14 = body.newObject("PartDesign::Pocket", "Pocket013")
pocket14.Profile = sketch15
pocket14.Length = 5

sketch16 = body.newObject("Sketcher::SketchObject", "Sketch015")
sketch16.AttachmentSupport = (doc.getObject("XY_Plane"), [""])
sketch16.MapMode = "FlatFace"
sketch16.addGeometry(Part.Circle(Vector(5.5, 30.5, 0), Vector(0, 0, 1), 1.7), False)
sketch16.addGeometry(Part.Circle(Vector(5.5, -30.5, 0), Vector(0, 0, 1), 2), False)
sketch16.addConstraint(Sketcher.Constraint("Symmetric", 0, 3, 1, 3, -1))
sketch16.addConstraint(Sketcher.Constraint("Diameter", 1, Q("4 mm")))
sketch16.addConstraint(Sketcher.Constraint("DistanceY", 1, 3, 0, 3, Q("61 mm")))
sketch16.addConstraint(Sketcher.Constraint("DistanceX", -1, 1, 0, 3, Q("5.5 mm")))
sketch16.addConstraint(Sketcher.Constraint("Diameter", 0, Q("3.48322 mm")))
pocket15 = body.newObject("PartDesign::Pocket", "Pocket014")
pocket15.Profile = sketch16
pocket15.Length = 8
pocket15.Reversed = True

sketch17 = body.newObject("Sketcher::SketchObject", "Sketch016")
sketch17.AttachmentSupport = (doc.getObject("XY_Plane"), [""])
sketch17.MapMode = "FlatFace"
sketch17.AttachmentOffset = App.Placement(Vector(0, 0, 64), App.Rotation())
sketch17.addGeometry(Part.LineSegment(Vector(61, 16, 0), Vector(61, -16, 0)), False)
sketch17.addGeometry(Part.LineSegment(Vector(61, -16, 0), Vector(104, -16, 0)), False)
sketch17.addGeometry(Part.LineSegment(Vector(104, -16, 0), Vector(104, 16, 0)), False)
sketch17.addGeometry(Part.LineSegment(Vector(104, 16, 0), Vector(61, 16, 0)), False)
sketch17.addConstraint(Sketcher.Constraint("Coincident", 0, 2, 1, 1))
sketch17.addConstraint(Sketcher.Constraint("Coincident", 1, 2, 2, 1))
sketch17.addConstraint(Sketcher.Constraint("Coincident", 2, 2, 3, 1))
sketch17.addConstraint(Sketcher.Constraint("Coincident", 3, 2, 0, 1))
sketch17.addConstraint(Sketcher.Constraint("Vertical", 0))
sketch17.addConstraint(Sketcher.Constraint("Horizontal", 1))
sketch17.addConstraint(Sketcher.Constraint("Vertical", 2))
sketch17.addConstraint(Sketcher.Constraint("Horizontal", 3))
sketch17.addConstraint(Sketcher.Constraint("DistanceY", 0, 2, 0, 1, Q("32.5 mm")))
sketch17.addConstraint(Sketcher.Constraint("DistanceX", -1, 1, 0, 2, Q("61 mm")))
sketch17.addConstraint(Sketcher.Constraint("DistanceY", 0, 2, -1, 1, Q("16.25 mm")))
sketch17.addConstraint(Sketcher.Constraint("DistanceX", 1, 1, 1, 2, Q("43.287706 mm")))
pocket16 = body.newObject("PartDesign::Pocket", "Pocket015")
pocket16.Profile = sketch17
pocket16.Length = 8

sketch18 = body.newObject("Sketcher::SketchObject", "Sketch017")
sketch18.AttachmentSupport = (doc.getObject("XY_Plane"), [""])
sketch18.MapMode = "FlatFace"
sketch18.AttachmentOffset = App.Placement(Vector(0, 0, 64), App.Rotation())
sketch18.addGeometry(Part.Circle(Vector(-20, 30, 0), Vector(0, 0, 1), 1.4), False)
sketch18.addGeometry(Part.Circle(Vector(20, 30, 0), Vector(0, 0, 1), 1.4), False)
sketch18.addGeometry(Part.Circle(Vector(20, -30, 0), Vector(0, 0, 1), 1.4), False)
sketch18.addGeometry(Part.Circle(Vector(-20, -30, 0), Vector(0, 0, 1), 1.4), False)
sketch18.addConstraint(Sketcher.Constraint("Equal", 0, 1))
sketch18.addConstraint(Sketcher.Constraint("Equal", 1, 2))
sketch18.addConstraint(Sketcher.Constraint("Equal", 2, 3))
sketch18.addConstraint(Sketcher.Constraint("Symmetric", 0, 3, 2, 3, -1, 1))
sketch18.addConstraint(Sketcher.Constraint("Symmetric", 1, 3, 3, 3, -1, 1))
sketch18.addConstraint(Sketcher.Constraint("Symmetric", 0, 3, 1, 3, -2))
sketch18.addConstraint(Sketcher.Constraint("Diameter", 0, Q("2.9 mm")))
sketch18.addConstraint(Sketcher.Constraint("DistanceX", 0, 3, -1, 1, Q("20 mm")))
sketch18.addConstraint(Sketcher.Constraint("DistanceY", -1, 1, 0, 3, Q("30 mm")))
pocket17 = body.newObject("PartDesign::Pocket", "Pocket016")
pocket17.Profile = sketch18
pocket17.Length = 20

sketch19 = body.newObject("Sketcher::SketchObject", "Sketch018")
sketch19.AttachmentSupport = (doc.getObject("XZ_Plane"), [""])
sketch19.MapMode = "FlatFace"
sketch19.AttachmentOffset = App.Placement(Vector(0, 0, 36.5), App.Rotation())
sketch19.addGeometry(Part.LineSegment(Vector(-13.6, 18, 0), Vector(-13.6, 50, 0)), False)
sketch19.addGeometry(Part.ArcOfCircle(Part.Circle(Vector(-15.6, 50, 0), Vector(0, 0, 1), 2), math.radians(0), math.radians(180)), False)
sketch19.addGeometry(Part.LineSegment(Vector(-17.6, 50, 0), Vector(-17.6, 18, 0)), False)
sketch19.addGeometry(Part.ArcOfCircle(Part.Circle(Vector(-15.6, 18, 0), Vector(0, 0, 1), 2), math.radians(180), math.radians(360)), False)
sketch19.addGeometry(Part.LineSegment(Vector(-7.6, 18, 0), Vector(-7.6, 50, 0)), False)
sketch19.addGeometry(Part.ArcOfCircle(Part.Circle(Vector(-9.6, 50, 0), Vector(0, 0, 1), 2), math.radians(0), math.radians(180)), False)
sketch19.addGeometry(Part.LineSegment(Vector(-11.6, 50, 0), Vector(-11.6, 18, 0)), False)
sketch19.addGeometry(Part.ArcOfCircle(Part.Circle(Vector(-9.6, 18, 0), Vector(0, 0, 1), 2), math.radians(180), math.radians(360)), False)
sketch19.addGeometry(Part.LineSegment(Vector(-1.6, 18, 0), Vector(-1.6, 50, 0)), False)
sketch19.addGeometry(Part.ArcOfCircle(Part.Circle(Vector(-3.6, 50, 0), Vector(0, 0, 1), 2), math.radians(0), math.radians(180)), False)
sketch19.addGeometry(Part.LineSegment(Vector(-5.6, 50, 0), Vector(-5.6, 18, 0)), False)
sketch19.addGeometry(Part.ArcOfCircle(Part.Circle(Vector(-3.6, 18, 0), Vector(0, 0, 1), 2), math.radians(180), math.radians(360)), False)
sketch19.addGeometry(Part.LineSegment(Vector(4.4, 18, 0), Vector(4.4, 50, 0)), False)
sketch19.addGeometry(Part.ArcOfCircle(Part.Circle(Vector(2.4, 50, 0), Vector(0, 0, 1), 2), math.radians(0), math.radians(180)), False)
sketch19.addGeometry(Part.LineSegment(Vector(0.4, 50, 0), Vector(0.4, 18, 0)), False)
sketch19.addGeometry(Part.ArcOfCircle(Part.Circle(Vector(2.4, 18, 0), Vector(0, 0, 1), 2), math.radians(180), math.radians(360)), False)
sketch19.addConstraint(Sketcher.Constraint("Tangent", 0, 2, 1, 1))
sketch19.addConstraint(Sketcher.Constraint("Tangent", 1, 2, 2, 1))
sketch19.addConstraint(Sketcher.Constraint("Tangent", 2, 2, 3, 1))
sketch19.addConstraint(Sketcher.Constraint("Tangent", 3, 2, 0, 1))
sketch19.addConstraint(Sketcher.Constraint("Tangent", 4, 2, 5, 1))
sketch19.addConstraint(Sketcher.Constraint("Tangent", 5, 2, 6, 1))
sketch19.addConstraint(Sketcher.Constraint("Tangent", 6, 2, 7, 1))
sketch19.addConstraint(Sketcher.Constraint("Tangent", 7, 2, 4, 1))
sketch19.addConstraint(Sketcher.Constraint("Tangent", 8, 2, 9, 1))
sketch19.addConstraint(Sketcher.Constraint("Tangent", 9, 2, 10, 1))
sketch19.addConstraint(Sketcher.Constraint("Tangent", 10, 2, 11, 1))
sketch19.addConstraint(Sketcher.Constraint("Tangent", 11, 2, 8, 1))
sketch19.addConstraint(Sketcher.Constraint("Tangent", 12, 2, 13, 1))
sketch19.addConstraint(Sketcher.Constraint("Tangent", 13, 2, 14, 1))
sketch19.addConstraint(Sketcher.Constraint("Tangent", 14, 2, 15, 1))
sketch19.addConstraint(Sketcher.Constraint("Tangent", 15, 2, 12, 1))
sketch19.addConstraint(Sketcher.Constraint("Vertical", 0))
sketch19.addConstraint(Sketcher.Constraint("Vertical", 2))
sketch19.addConstraint(Sketcher.Constraint("Vertical", 4))
sketch19.addConstraint(Sketcher.Constraint("Vertical", 6))
sketch19.addConstraint(Sketcher.Constraint("Vertical", 8))
sketch19.addConstraint(Sketcher.Constraint("Vertical", 10))
sketch19.addConstraint(Sketcher.Constraint("Vertical", 12))
sketch19.addConstraint(Sketcher.Constraint("Vertical", 14))
sketch19.addConstraint(Sketcher.Constraint("Equal", 3, 5))
sketch19.addConstraint(Sketcher.Constraint("Equal", 7, 9))
sketch19.addConstraint(Sketcher.Constraint("Equal", 11, 13))
sketch19.addConstraint(Sketcher.Constraint("Horizontal", 1, 3, 5, 3))
sketch19.addConstraint(Sketcher.Constraint("Horizontal", 3, 3, 7, 3))
sketch19.addConstraint(Sketcher.Constraint("Horizontal", 5, 3, 9, 3))
sketch19.addConstraint(Sketcher.Constraint("Horizontal", 7, 3, 11, 3))
sketch19.addConstraint(Sketcher.Constraint("Horizontal", 9, 3, 13, 3))
sketch19.addConstraint(Sketcher.Constraint("Horizontal", 11, 3, 15, 3))
sketch19.addConstraint(Sketcher.Constraint("Radius", 1, Q("2 mm")))
sketch19.addConstraint(Sketcher.Constraint("DistanceY", 0, 1, 0, 2, Q("32 mm")))
sketch19.addConstraint(Sketcher.Constraint("DistanceY", -1, 1, 1, 3, Q("50 mm")))
sketch19.addConstraint(Sketcher.Constraint("DistanceX", 1, 3, 5, 3, Q("6 mm")))
sketch19.addConstraint(Sketcher.Constraint("DistanceX", 5, 3, 9, 3, Q("6 mm")))
sketch19.addConstraint(Sketcher.Constraint("DistanceX", 9, 3, 13, 3, Q("6 mm")))
sketch19.addConstraint(Sketcher.Constraint("DistanceX", 1, 3, -1, 1, Q("15.56219 mm")))
pocket18 = body.newObject("PartDesign::Pocket", "Pocket017")
pocket18.Profile = sketch19
pocket18.Type = "ThroughAll"

sketch20 = body.newObject("Sketcher::SketchObject", "Sketch019")
sketch20.AttachmentSupport = (doc.getObject("XZ_Plane"), [""])
sketch20.MapMode = "FlatFace"
sketch20.AttachmentOffset = App.Placement(Vector(0, 0, -36.5), App.Rotation())
sketch20.addGeometry(Part.Circle(Vector(-22.6, 18, 0), Vector(0, 0, 1), 1.5), False)
sketch20.addGeometry(Part.Circle(Vector(-22.6, 50, 0), Vector(0, 0, 1), 1.5), False)
sketch20.addGeometry(Part.Circle(Vector(9.4, 18, 0), Vector(0, 0, 1), 1.5), False)
sketch20.addGeometry(Part.Circle(Vector(9.4, 50, 0), Vector(0, 0, 1), 1.5), False)
sketch20.addConstraint(Sketcher.Constraint("Equal", 0, 1))
sketch20.addConstraint(Sketcher.Constraint("Equal", 1, 2))
sketch20.addConstraint(Sketcher.Constraint("Equal", 2, 3))
sketch20.addConstraint(Sketcher.Constraint("Horizontal", 0, 3, 2, 3))
sketch20.addConstraint(Sketcher.Constraint("Horizontal", 1, 3, 3, 3))
sketch20.addConstraint(Sketcher.Constraint("Vertical", 0, 3, 1, 3))
sketch20.addConstraint(Sketcher.Constraint("Vertical", 2, 3, 3, 3))
sketch20.addConstraint(Sketcher.Constraint("Diameter", 0, Q("3 mm")))
sketch20.addConstraint(Sketcher.Constraint("DistanceY", -1, 1, 0, 3, Q("18 mm")))
sketch20.addConstraint(Sketcher.Constraint("DistanceY", -1, 1, 1, 3, Q("50 mm")))
sketch20.addConstraint(Sketcher.Constraint("DistanceX", 0, 3, 2, 3, Q("32 mm")))
sketch20.addConstraint(Sketcher.Constraint("DistanceX", 0, 3, -1, 1, Q("22.56219 mm")))
pocket19 = body.newObject("PartDesign::Pocket", "Pocket018")
pocket19.Profile = sketch20
pocket19.Type = "ThroughAll"
pocket19.Reversed = True

doc.recompute()
